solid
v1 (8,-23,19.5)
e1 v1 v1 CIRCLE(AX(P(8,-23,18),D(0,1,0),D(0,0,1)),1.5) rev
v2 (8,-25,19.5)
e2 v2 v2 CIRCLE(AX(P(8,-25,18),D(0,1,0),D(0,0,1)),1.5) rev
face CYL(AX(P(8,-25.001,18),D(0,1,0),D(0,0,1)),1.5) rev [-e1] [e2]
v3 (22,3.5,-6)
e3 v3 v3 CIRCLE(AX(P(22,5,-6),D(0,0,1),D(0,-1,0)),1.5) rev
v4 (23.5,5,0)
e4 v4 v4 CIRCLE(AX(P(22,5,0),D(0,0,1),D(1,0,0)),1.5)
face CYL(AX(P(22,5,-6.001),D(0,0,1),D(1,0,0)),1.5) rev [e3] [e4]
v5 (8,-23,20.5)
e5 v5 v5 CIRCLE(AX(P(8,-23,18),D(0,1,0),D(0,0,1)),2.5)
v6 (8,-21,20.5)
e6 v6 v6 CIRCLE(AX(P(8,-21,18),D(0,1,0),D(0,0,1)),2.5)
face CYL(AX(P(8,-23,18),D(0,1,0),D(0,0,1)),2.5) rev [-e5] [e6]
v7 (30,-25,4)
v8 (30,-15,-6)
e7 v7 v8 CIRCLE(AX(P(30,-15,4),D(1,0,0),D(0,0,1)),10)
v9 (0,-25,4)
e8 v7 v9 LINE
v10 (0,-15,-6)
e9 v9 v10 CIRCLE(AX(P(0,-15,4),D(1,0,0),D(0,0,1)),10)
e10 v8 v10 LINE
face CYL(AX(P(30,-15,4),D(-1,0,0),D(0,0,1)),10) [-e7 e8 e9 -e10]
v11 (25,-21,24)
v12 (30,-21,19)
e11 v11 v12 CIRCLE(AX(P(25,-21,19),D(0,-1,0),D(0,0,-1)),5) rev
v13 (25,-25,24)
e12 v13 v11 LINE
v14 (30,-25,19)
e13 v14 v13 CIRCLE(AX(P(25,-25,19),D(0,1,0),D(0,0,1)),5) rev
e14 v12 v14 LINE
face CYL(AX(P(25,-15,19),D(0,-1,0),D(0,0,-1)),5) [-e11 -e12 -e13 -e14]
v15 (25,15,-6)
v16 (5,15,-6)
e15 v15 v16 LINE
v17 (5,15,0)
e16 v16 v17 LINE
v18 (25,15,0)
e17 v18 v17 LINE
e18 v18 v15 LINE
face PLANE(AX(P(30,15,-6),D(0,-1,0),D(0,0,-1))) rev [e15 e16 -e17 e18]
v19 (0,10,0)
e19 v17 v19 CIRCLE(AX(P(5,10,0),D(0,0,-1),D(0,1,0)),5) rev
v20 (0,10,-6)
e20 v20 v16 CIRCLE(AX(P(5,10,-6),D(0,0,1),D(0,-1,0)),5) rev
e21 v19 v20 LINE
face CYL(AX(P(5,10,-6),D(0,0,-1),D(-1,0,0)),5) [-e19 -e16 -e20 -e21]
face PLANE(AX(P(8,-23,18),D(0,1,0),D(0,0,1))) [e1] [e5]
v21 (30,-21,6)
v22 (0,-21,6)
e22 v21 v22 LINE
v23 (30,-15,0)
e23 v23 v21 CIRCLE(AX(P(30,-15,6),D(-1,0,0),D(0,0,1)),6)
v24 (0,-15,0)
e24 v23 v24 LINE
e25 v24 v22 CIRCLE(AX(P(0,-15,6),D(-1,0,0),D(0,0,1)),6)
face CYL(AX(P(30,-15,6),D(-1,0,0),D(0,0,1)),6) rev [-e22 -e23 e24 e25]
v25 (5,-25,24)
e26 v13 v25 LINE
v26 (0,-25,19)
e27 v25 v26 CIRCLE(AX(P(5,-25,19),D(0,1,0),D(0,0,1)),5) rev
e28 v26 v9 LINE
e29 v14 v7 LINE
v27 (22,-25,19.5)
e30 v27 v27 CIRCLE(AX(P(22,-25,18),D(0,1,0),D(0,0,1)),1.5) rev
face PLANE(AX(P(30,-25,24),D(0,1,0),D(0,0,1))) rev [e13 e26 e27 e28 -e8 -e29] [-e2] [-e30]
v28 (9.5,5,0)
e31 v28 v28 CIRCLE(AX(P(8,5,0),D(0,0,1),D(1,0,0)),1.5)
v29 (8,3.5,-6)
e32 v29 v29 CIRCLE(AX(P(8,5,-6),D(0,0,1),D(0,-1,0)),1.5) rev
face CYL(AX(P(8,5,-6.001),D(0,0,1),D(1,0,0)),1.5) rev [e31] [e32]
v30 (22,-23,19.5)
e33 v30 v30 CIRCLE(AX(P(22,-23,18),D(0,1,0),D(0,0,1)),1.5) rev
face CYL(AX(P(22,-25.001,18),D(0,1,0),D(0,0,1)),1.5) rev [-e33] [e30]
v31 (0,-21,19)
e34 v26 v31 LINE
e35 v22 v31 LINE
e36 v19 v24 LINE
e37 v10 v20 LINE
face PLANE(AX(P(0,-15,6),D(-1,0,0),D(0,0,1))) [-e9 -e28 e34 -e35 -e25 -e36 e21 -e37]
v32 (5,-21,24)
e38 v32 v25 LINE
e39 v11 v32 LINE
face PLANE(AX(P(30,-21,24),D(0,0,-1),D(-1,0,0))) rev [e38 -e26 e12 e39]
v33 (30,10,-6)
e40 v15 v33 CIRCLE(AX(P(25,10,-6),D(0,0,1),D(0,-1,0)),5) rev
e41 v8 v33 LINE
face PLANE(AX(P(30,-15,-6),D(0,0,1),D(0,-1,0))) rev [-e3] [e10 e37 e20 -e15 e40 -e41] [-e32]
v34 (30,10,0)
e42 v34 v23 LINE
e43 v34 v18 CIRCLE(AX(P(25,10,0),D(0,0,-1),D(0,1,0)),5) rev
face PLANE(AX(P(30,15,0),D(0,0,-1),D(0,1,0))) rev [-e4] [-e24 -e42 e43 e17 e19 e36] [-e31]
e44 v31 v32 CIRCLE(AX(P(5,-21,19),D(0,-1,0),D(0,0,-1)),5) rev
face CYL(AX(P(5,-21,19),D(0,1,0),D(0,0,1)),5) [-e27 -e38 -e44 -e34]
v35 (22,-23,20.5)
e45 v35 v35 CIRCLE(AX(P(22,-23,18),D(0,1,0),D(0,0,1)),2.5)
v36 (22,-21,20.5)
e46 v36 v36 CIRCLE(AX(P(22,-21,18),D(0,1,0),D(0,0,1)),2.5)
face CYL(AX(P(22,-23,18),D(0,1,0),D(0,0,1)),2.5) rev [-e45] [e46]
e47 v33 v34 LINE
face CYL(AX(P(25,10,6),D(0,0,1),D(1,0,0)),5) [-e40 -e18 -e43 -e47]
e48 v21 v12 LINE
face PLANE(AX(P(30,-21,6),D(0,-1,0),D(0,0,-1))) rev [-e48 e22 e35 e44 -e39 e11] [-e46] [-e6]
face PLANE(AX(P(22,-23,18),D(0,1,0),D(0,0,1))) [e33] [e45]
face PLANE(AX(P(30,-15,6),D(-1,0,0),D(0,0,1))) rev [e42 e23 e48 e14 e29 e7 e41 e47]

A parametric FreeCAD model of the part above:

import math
import FreeCAD as App
import Part
import Sketcher


def edges_at(feature, points):
    """Names of the edges that pass closest to the given points."""
    edges = feature.Shape.Edges
    near = lambda p: min(range(len(edges)), key=lambda i: edges[i].distToShape(Part.Vertex(*p))[0])
    return sorted({f"Edge{near(p) + 1}" for p in points})

doc = App.newDocument("Part")
body = doc.addObject("PartDesign::Body", "Body")

# Sketch on YZ plane
sketch1 = doc.addObject("Sketcher::SketchObject", "Sketch")
body.addObject(sketch1)
sketch1.AttachmentSupport = (doc.YZ_Plane, [""])
sketch1.MapMode = "FlatFace"
sketch1.addGeometry(Part.LineSegment(App.Vector(15, 0, 0), App.Vector(-15, 0, 0)), False)
sketch1.addGeometry(Part.ArcOfCircle(Part.Circle(App.Vector(-15, 6, 0), App.Vector(0, 0, 1), 6), math.radians(180), math.radians(270)), False)
sketch1.addGeometry(Part.LineSegment(App.Vector(-21, 6, 0), App.Vector(-21, 24, 0)), False)
sketch1.addGeometry(Part.LineSegment(App.Vector(-21, 24, 0), App.Vector(-25, 24, 0)), False)
sketch1.addGeometry(Part.LineSegment(App.Vector(-25, 24, 0), App.Vector(-25, 4, 0)), False)
sketch1.addGeometry(Part.ArcOfCircle(Part.Circle(App.Vector(-15, 4, 0), App.Vector(0, 0, 1), 10), math.radians(180), math.radians(270)), False)
sketch1.addGeometry(Part.LineSegment(App.Vector(-15, -6, 0), App.Vector(15, -6, 0)), False)
sketch1.addGeometry(Part.LineSegment(App.Vector(15, -6, 0), App.Vector(15, 0, 0)), False)
sketch1.addConstraint(Sketcher.Constraint("Tangent", 0, 2, 1, 2))
sketch1.addConstraint(Sketcher.Constraint("Tangent", 1, 1, 2, 1))
sketch1.addConstraint(Sketcher.Constraint("Coincident", 2, 2, 3, 1))
sketch1.addConstraint(Sketcher.Constraint("Coincident", 3, 2, 4, 1))
sketch1.addConstraint(Sketcher.Constraint("Tangent", 4, 2, 5, 1))
sketch1.addConstraint(Sketcher.Constraint("Tangent", 5, 2, 6, 1))
sketch1.addConstraint(Sketcher.Constraint("Coincident", 6, 2, 7, 1))
sketch1.addConstraint(Sketcher.Constraint("Coincident", 7, 2, 0, 1))
sketch1.addConstraint(Sketcher.Constraint("Horizontal", 0))
sketch1.addConstraint(Sketcher.Constraint("Vertical", 2))
sketch1.addConstraint(Sketcher.Constraint("Horizontal", 3))
sketch1.addConstraint(Sketcher.Constraint("Vertical", 4))
sketch1.addConstraint(Sketcher.Constraint("Horizontal", 6))
sketch1.addConstraint(Sketcher.Constraint("Vertical", 7))
sketch1.addConstraint(Sketcher.Constraint("Symmetric", 0, 2, 7, 2, -1, 1))
sketch1.addConstraint(Sketcher.Constraint("Vertical", 1, 3, 5, 3))
sketch1.addConstraint(Sketcher.Constraint("Radius", 1, 6.0))
sketch1.addConstraint(Sketcher.Constraint("Radius", 5, 10.0))
sketch1.addConstraint(Sketcher.Constraint("DistanceX", 0, 2, 0, 1, 30.0))
sketch1.addConstraint(Sketcher.Constraint("DistanceY", 2, 1, 2, 2, 18.0))
sketch1.addConstraint(Sketcher.Constraint("DistanceY", 4, 2, 4, 1, 20.0))
pad1 = doc.addObject("PartDesign::Pad", "Pad")
body.addObject(pad1)
pad1.Profile = sketch1
pad1.Length = 30
doc.recompute()

fillet = doc.addObject("PartDesign::Fillet", "Fillet")
body.addObject(fillet)
fillet.Base = (pad1, edges_at(pad1, [
    (0, 15, -3),
    (30, -23, 24),
    (30, 15, -3),
    (0, -23, 24),
]))
fillet.Radius = 5

# Sketch on XZ plane
sketch2 = doc.addObject("Sketcher::SketchObject", "Sketch001")
body.addObject(sketch2)
sketch2.AttachmentSupport = (doc.XZ_Plane, [""])
sketch2.MapMode = "FlatFace"
sketch2.AttachmentOffset = App.Placement(App.Vector(0, 0, 21), App.Rotation())
sketch2.addGeometry(Part.Circle(App.Vector(8, 18, 0), App.Vector(0, 0, 1), 1.5), False)
sketch2.addConstraint(Sketcher.Constraint("Diameter", 0, 3.0))
sketch2.addConstraint(Sketcher.Constraint("DistanceX", -1, 1, 0, 3, 8.0))
sketch2.addConstraint(Sketcher.Constraint("DistanceY", -1, 1, 0, 3, 18.0))
pocket1 = doc.addObject("PartDesign::Pocket", "Pocket")
body.addObject(pocket1)
pocket1.Profile = sketch2
pocket1.Type = "UpToFirst"
pocket1.Reversed = True

# Sketch on XZ plane
sketch3 = doc.addObject("Sketcher::SketchObject", "Sketch002")
body.addObject(sketch3)
sketch3.AttachmentSupport = (doc.XZ_Plane, [""])
sketch3.MapMode = "FlatFace"
sketch3.AttachmentOffset = App.Placement(App.Vector(0, 0, 21), App.Rotation())
sketch3.addGeometry(Part.Circle(App.Vector(22, 18, 0), App.Vector(0, 0, 1), 1.5), False)
sketch3.addConstraint(Sketcher.Constraint("Diameter", 0, 3.0))
sketch3.addConstraint(Sketcher.Constraint("DistanceX", -1, 1, 0, 3, 22.0))
sketch3.addConstraint(Sketcher.Constraint("DistanceY", -1, 1, 0, 3, 18.0))
pocket2 = doc.addObject("PartDesign::Pocket", "Pocket001")
body.addObject(pocket2)
pocket2.Profile = sketch3
pocket2.Type = "UpToFirst"
pocket2.Reversed = True

# Sketch on XZ plane
sketch4 = doc.addObject("Sketcher::SketchObject", "Sketch003")
body.addObject(sketch4)
sketch4.AttachmentSupport = (doc.XZ_Plane, [""])
sketch4.MapMode = "FlatFace"
sketch4.AttachmentOffset = App.Placement(App.Vector(0, 0, 21), App.Rotation())
sketch4.addGeometry(Part.Circle(App.Vector(8, 18, 0), App.Vector(0, 0, 1), 2.5), False)
sketch4.addGeometry(Part.Circle(App.Vector(22, 18, 0), App.Vector(0, 0, 1), 2.5), False)
sketch4.addConstraint(Sketcher.Constraint("Equal", 0, 1))
sketch4.addConstraint(Sketcher.Constraint("Horizontal", 0, 3, 1, 3))
sketch4.addConstraint(Sketcher.Constraint("Diameter", 0, 5.0))
sketch4.addConstraint(Sketcher.Constraint("DistanceX", -1, 1, 0, 3, 8.0))
sketch4.addConstraint(Sketcher.Constraint("DistanceY", -1, 1, 0, 3, 18.0))
sketch4.addConstraint(Sketcher.Constraint("DistanceX", -1, 1, 1, 3, 22.0))
pocket3 = doc.addObject("PartDesign::Pocket", "Pocket002")
body.addObject(pocket3)
pocket3.Profile = sketch4
pocket3.Length = 2
pocket3.Reversed = True

# Sketch on XY plane
sketch5 = doc.addObject("Sketcher::SketchObject", "Sketch004")
body.addObject(sketch5)
sketch5.AttachmentSupport = (doc.XY_Plane, [""])
sketch5.MapMode = "FlatFace"
sketch5.addGeometry(Part.Circle(App.Vector(8, 5, 0), App.Vector(0, 0, 1), 1.5), False)
sketch5.addConstraint(Sketcher.Constraint("Diameter", 0, 3.0))
sketch5.addConstraint(Sketcher.Constraint("DistanceX", -1, 1, 0, 3, 8.0))
sketch5.addConstraint(Sketcher.Constraint("DistanceY", -1, 1, 0, 3, 5.0))
pocket4 = doc.addObject("PartDesign::Pocket", "Pocket003")
body.addObject(pocket4)
pocket4.Profile = sketch5
pocket4.Type = "UpToFirst"

# Sketch on XY plane
sketch6 = doc.addObject("Sketcher::SketchObject", "Sketch005")
body.addObject(sketch6)
sketch6.AttachmentSupport = (doc.XY_Plane, [""])
sketch6.MapMode = "FlatFace"
sketch6.addGeometry(Part.Circle(App.Vector(22, 5, 0), App.Vector(0, 0, 1), 1.5), False)
sketch6.addConstraint(Sketcher.Constraint("Diameter", 0, 3.0))
sketch6.addConstraint(Sketcher.Constraint("DistanceX", -1, 1, 0, 3, 22.0))
sketch6.addConstraint(Sketcher.Constraint("DistanceY", -1, 1, 0, 3, 5.0))
pocket5 = doc.addObject("PartDesign::Pocket", "Pocket004")
body.addObject(pocket5)
pocket5.Profile = sketch6
pocket5.Type = "UpToFirst"

doc.recompute()
